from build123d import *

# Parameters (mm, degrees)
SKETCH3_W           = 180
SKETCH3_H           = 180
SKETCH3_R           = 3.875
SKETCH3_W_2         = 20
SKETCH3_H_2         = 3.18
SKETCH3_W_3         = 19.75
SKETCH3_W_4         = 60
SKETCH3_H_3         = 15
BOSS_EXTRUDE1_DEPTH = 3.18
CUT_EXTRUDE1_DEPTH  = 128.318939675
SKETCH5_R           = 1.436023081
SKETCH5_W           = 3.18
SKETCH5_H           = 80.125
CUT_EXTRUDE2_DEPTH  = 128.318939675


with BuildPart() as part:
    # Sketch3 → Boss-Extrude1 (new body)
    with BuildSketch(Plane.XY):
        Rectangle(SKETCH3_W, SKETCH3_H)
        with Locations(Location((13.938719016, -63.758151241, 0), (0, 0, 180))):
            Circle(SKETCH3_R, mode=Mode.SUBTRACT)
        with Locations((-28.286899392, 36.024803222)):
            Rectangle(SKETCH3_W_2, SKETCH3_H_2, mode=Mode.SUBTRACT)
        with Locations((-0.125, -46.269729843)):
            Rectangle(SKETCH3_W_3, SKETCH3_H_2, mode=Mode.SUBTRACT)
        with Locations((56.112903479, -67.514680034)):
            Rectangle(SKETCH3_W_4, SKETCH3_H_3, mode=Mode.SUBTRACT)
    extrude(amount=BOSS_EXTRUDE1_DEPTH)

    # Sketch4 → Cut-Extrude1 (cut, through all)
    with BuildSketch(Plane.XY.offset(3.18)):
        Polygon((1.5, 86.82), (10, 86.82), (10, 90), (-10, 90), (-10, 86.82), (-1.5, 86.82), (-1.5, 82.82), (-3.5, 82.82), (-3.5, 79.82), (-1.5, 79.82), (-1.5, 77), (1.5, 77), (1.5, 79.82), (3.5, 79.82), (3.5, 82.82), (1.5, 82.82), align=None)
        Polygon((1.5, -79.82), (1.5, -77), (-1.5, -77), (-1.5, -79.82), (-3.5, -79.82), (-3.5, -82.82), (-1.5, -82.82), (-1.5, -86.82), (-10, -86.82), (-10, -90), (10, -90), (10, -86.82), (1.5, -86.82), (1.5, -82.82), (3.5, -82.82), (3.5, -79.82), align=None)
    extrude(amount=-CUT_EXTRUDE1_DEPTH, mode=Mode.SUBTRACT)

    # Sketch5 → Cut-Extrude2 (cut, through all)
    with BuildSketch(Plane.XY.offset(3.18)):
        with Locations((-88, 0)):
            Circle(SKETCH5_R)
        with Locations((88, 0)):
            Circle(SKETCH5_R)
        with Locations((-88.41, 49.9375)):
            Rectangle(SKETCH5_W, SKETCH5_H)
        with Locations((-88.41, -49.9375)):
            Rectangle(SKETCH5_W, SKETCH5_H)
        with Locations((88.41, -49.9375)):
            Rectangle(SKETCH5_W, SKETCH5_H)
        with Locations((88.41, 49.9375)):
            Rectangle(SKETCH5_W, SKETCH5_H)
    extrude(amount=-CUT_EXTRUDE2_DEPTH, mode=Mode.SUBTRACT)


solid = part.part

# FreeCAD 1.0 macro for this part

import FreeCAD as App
import Part
import Sketcher


def add_polygon(sketch, points):
    """Adds a closed chain of lines whose ends are joined by coincident constraints."""
    first, n = sketch.GeometryCount, len(points)
    for a, b in zip(points, points[1:] + points[:1]):
        sketch.addGeometry(Part.LineSegment(App.Vector(*a, 0), App.Vector(*b, 0)), False)
    for i in range(n):
        sketch.addConstraint(Sketcher.Constraint("Coincident", first + i, 2, first + (i + 1) % n, 1))

doc = App.newDocument("Part")
body = doc.addObject("PartDesign::Body", "Body")

# Sketch on XY plane
sketch1 = doc.addObject("Sketcher::SketchObject", "Sketch")
body.addObject(sketch1)
sketch1.AttachmentSupport = (doc.XY_Plane, [""])
sketch1.MapMode = "FlatFace"
add_polygon(sketch1, [(-90, 90), (-90, -90), (90, -90), (90, 90)])  # lines 0-3
sketch1.addGeometry(Part.Circle(App.Vector(13.9, -63.8, 0), App.Vector(0, 0, 1), 3.9), False)  # 4
add_polygon(sketch1, [(9.8, -47.9), (-10, -47.9), (-10, -44.7), (9.8, -44.7)])  # lines 5-8
add_polygon(sketch1, [(86.1, -75), (26.1, -75), (26.1, -60), (86.1, -60)])  # lines 9-12
add_polygon(sketch1, [(-18.3, 34.4), (-38.3, 34.4), (-38.3, 37.6), (-18.3, 37.6)])  # lines 13-16
sketch1.addConstraint(Sketcher.Constraint("Vertical", 0))
sketch1.addConstraint(Sketcher.Constraint("Horizontal", 1))
sketch1.addConstraint(Sketcher.Constraint("Vertical", 2))
sketch1.addConstraint(Sketcher.Constraint("Horizontal", 3))
sketch1.addConstraint(Sketcher.Constraint("Horizontal", 5))
sketch1.addConstraint(Sketcher.Constraint("Vertical", 6))
sketch1.addConstraint(Sketcher.Constraint("Horizontal", 7))
sketch1.addConstraint(Sketcher.Constraint("Vertical", 8))
sketch1.addConstraint(Sketcher.Constraint("Horizontal", 9))
sketch1.addConstraint(Sketcher.Constraint("Vertical", 10))
sketch1.addConstraint(Sketcher.Constraint("Horizontal", 11))
sketch1.addConstraint(Sketcher.Constraint("Vertical", 12))
sketch1.addConstraint(Sketcher.Constraint("Horizontal", 13))
sketch1.addConstraint(Sketcher.Constraint("Vertical", 14))
sketch1.addConstraint(Sketcher.Constraint("Horizontal", 15))
sketch1.addConstraint(Sketcher.Constraint("Vertical", 16))
sketch1.addConstraint(Sketcher.Constraint("Symmetric", 0, 2, 2, 2, -1, 1))
sketch1.addConstraint(Sketcher.Constraint("Equal", 3, 0))
sketch1.addConstraint(Sketcher.Constraint("Equal", 8, 14))
sketch1.addConstraint(Sketcher.Constraint("Diameter", 4, 7.75))
sketch1.addConstraint(Sketcher.Constraint("DistanceX", 1, 1, 1, 2, 180.0))
sketch1.addConstraint(Sketcher.Constraint("DistanceX", 9, 2, 9, 1, 60.0))
sketch1.addConstraint(Sketcher.Constraint("DistanceX", 13, 2, 13, 1, 20.0))
sketch1.addConstraint(Sketcher.Constraint("DistanceY", 10, 1, 10, 2, 15.0))
sketch1.addConstraint(Sketcher.Constraint("DistanceX", 5, 2, -1, 1, 10.0))
sketch1.addConstraint(Sketcher.Constraint("DistanceX", 5, 2, 5, 1, 19.75))
sketch1.addConstraint(Sketcher.Constraint("DistanceY", 6, 1, 6, 2, 3.18))
sketch1.addConstraint(Sketcher.Constraint("DistanceX", 13, 2, -1, 1, 38.286899))
sketch1.addConstraint(Sketcher.Constraint("DistanceX", -1, 1, 4, 3, 13.938719))
sketch1.addConstraint(Sketcher.Constraint("DistanceY", 4, 3, -1, 1, 63.758151))
sketch1.addConstraint(Sketcher.Constraint("DistanceY", 5, 2, -1, 1, 47.85973))
sketch1.addConstraint(Sketcher.Constraint("DistanceY", 9, 2, -1, 1, 75.01468))
sketch1.addConstraint(Sketcher.Constraint("DistanceX", -1, 1, 9, 2, 26.112903))
sketch1.addConstraint(Sketcher.Constraint("DistanceY", -1, 1, 13, 2, 34.434803))
pad1 = doc.addObject("PartDesign::Pad", "Pad")
body.addObject(pad1)
pad1.Profile = sketch1
pad1.Length = 3.18

# Sketch on XY plane
sketch2 = doc.addObject("Sketcher::SketchObject", "Sketch001")
body.addObject(sketch2)
sketch2.AttachmentSupport = (doc.XY_Plane, [""])
sketch2.MapMode = "FlatFace"
sketch2.AttachmentOffset = App.Placement(App.Vector(0, 0, 3.18), App.Rotation())
add_polygon(sketch2, [(1.5, 86.8), (10, 86.8), (10, 90), (-10, 90), (-10, 86.8), (-1.5, 86.8), (-1.5, 82.8), (-3.5, 82.8), (-3.5, 79.8), (-1.5, 79.8), (-1.5, 77), (1.5, 77), (1.5, 79.8), (3.5, 79.8), (3.5, 82.8), (1.5, 82.8)])  # lines 0-15
add_polygon(sketch2, [(1.5, -79.8), (1.5, -77), (-1.5, -77), (-1.5, -79.8), (-3.5, -79.8), (-3.5, -82.8), (-1.5, -82.8), (-1.5, -86.8), (-10, -86.8), (-10, -90), (10, -90), (10, -86.8), (1.5, -86.8), (1.5, -82.8), (3.5, -82.8), (3.5, -79.8)])  # lines 16-31
sketch2.addConstraint(Sketcher.Constraint("Horizontal", 0))
sketch2.addConstraint(Sketcher.Constraint("Vertical", 1))
sketch2.addConstraint(Sketcher.Constraint("Horizontal", 2))
sketch2.addConstraint(Sketcher.Constraint("Vertical", 3))
sketch2.addConstraint(Sketcher.Constraint("Horizontal", 4))
sketch2.addConstraint(Sketcher.Constraint("Vertical", 5))
sketch2.addConstraint(Sketcher.Constraint("Horizontal", 6))
sketch2.addConstraint(Sketcher.Constraint("Vertical", 7))
sketch2.addConstraint(Sketcher.Constraint("Horizontal", 8))
sketch2.addConstraint(Sketcher.Constraint("Vertical", 9))
sketch2.addConstraint(Sketcher.Constraint("Horizontal", 10))
sketch2.addConstraint(Sketcher.Constraint("Vertical", 11))
sketch2.addConstraint(Sketcher.Constraint("Horizontal", 12))
sketch2.addConstraint(Sketcher.Constraint("Vertical", 13))
sketch2.addConstraint(Sketcher.Constraint("Horizontal", 14))
sketch2.addConstraint(Sketcher.Constraint("Vertical", 15))
sketch2.addConstraint(Sketcher.Constraint("Vertical", 16))
sketch2.addConstraint(Sketcher.Constraint("Horizontal", 17))
sketch2.addConstraint(Sketcher.Constraint("Vertical", 18))
sketch2.addConstraint(Sketcher.Constraint("Horizontal", 19))
sketch2.addConstraint(Sketcher.Constraint("Vertical", 20))
sketch2.addConstraint(Sketcher.Constraint("Horizontal", 21))
sketch2.addConstraint(Sketcher.Constraint("Vertical", 22))
sketch2.addConstraint(Sketcher.Constraint("Horizontal", 23))
sketch2.addConstraint(Sketcher.Constraint("Vertical", 24))
sketch2.addConstraint(Sketcher.Constraint("Horizontal", 25))
sketch2.addConstraint(Sketcher.Constraint("Vertical", 26))
sketch2.addConstraint(Sketcher.Constraint("Horizontal", 27))
sketch2.addConstraint(Sketcher.Constraint("Vertical", 28))
sketch2.addConstraint(Sketcher.Constraint("Horizontal", 29))
sketch2.addConstraint(Sketcher.Constraint("Vertical", 30))
sketch2.addConstraint(Sketcher.Constraint("Horizontal", 31))
sketch2.addConstraint(Sketcher.Constraint("Symmetric", 9, 2, 16, 2, -1, 1))
sketch2.addConstraint(Sketcher.Constraint("Symmetric", 11, 2, 18, 2, -1, 1))
sketch2.addConstraint(Sketcher.Constraint("Symmetric", 13, 2, 20, 2, -1, 1))
sketch2.addConstraint(Sketcher.Constraint("Symmetric", 15, 2, 22, 2, -1, 1))
sketch2.addConstraint(Sketcher.Constraint("Symmetric", 1, 2, 24, 2, -1, 1))
sketch2.addConstraint(Sketcher.Constraint("Symmetric", 3, 2, 26, 2, -1, 1))
sketch2.addConstraint(Sketcher.Constraint("Symmetric", 5, 2, 28, 2, -1, 1))
sketch2.addConstraint(Sketcher.Constraint("Symmetric", 7, 2, 30, 2, -1, 1))
sketch2.addConstraint(Sketcher.Constraint("Symmetric", 0, 2, 3, 2, -2))
sketch2.addConstraint(Sketcher.Constraint("Symmetric", 8, 2, 11, 2, -2))
sketch2.addConstraint(Sketcher.Constraint("Symmetric", 6, 2, 13, 2, -2))
sketch2.addConstraint(Sketcher.Constraint("Vertical", 5, 2, 8, 2))
sketch2.addConstraint(Sketcher.Constraint("Vertical", 11, 2, 14, 2))
sketch2.addConstraint(Sketcher.Constraint("Equal", 17, 7))
sketch2.addConstraint(Sketcher.Constraint("DistanceX", 2, 2, 2, 1, 20.0))
sketch2.addConstraint(Sketcher.Constraint("DistanceX", 6, 2, 6, 1, 2.0))
sketch2.addConstraint(Sketcher.Constraint("DistanceX", 10, 1, 10, 2, 3.0))
sketch2.addConstraint(Sketcher.Constraint("DistanceY", 5, 2, 5, 1, 4.0))
sketch2.addConstraint(Sketcher.Constraint("DistanceY", -1, 1, 1, 2, 90.0))
sketch2.addConstraint(Sketcher.Constraint("DistanceY", -1, 1, 9, 2, 77.0))
sketch2.addConstraint(Sketcher.Constraint("DistanceY", 1, 1, 1, 2, 3.18))
pocket1 = doc.addObject("PartDesign::Pocket", "Pocket")
body.addObject(pocket1)
pocket1.Profile = sketch2
pocket1.Type = "ThroughAll"

# Sketch on XY plane
sketch3 = doc.addObject("Sketcher::SketchObject", "Sketch002")
body.addObject(sketch3)
sketch3.AttachmentSupport = (doc.XY_Plane, [""])
sketch3.MapMode = "FlatFace"
sketch3.AttachmentOffset = App.Placement(App.Vector(0, 0, 3.18), App.Rotation())
sketch3.addGeometry(Part.Circle(App.Vector(-88, 0, 0), App.Vector(0, 0, 1), 1.4), False)  # 0
sketch3.addGeometry(Part.Circle(App.Vector(88, 0, 0), App.Vector(0, 0, 1), 1.4), False)  # 1
add_polygon(sketch3, [(-90, 90), (-90, 9.9), (-86.8, 9.9), (-86.8, 90)])  # lines 2-5
add_polygon(sketch3, [(-90, -9.9), (-90, -90), (-86.8, -90), (-86.8, -9.9)])  # lines 6-9
add_polygon(sketch3, [(86.8, -9.9), (86.8, -90), (90, -90), (90, -9.9)])  # lines 10-13
add_polygon(sketch3, [(86.8, 90), (86.8, 9.9), (90, 9.9), (90, 90)])  # lines 14-17
sketch3.addConstraint(Sketcher.Constraint("Vertical", 2))
sketch3.addConstraint(Sketcher.Constraint("Horizontal", 3))
sketch3.addConstraint(Sketcher.Constraint("Vertical", 4))
sketch3.addConstraint(Sketcher.Constraint("Horizontal", 5))
sketch3.addConstraint(Sketcher.Constraint("Vertical", 6))
sketch3.addConstraint(Sketcher.Constraint("Horizontal", 7))
sketch3.addConstraint(Sketcher.Constraint("Vertical", 8))
sketch3.addConstraint(Sketcher.Constraint("Horizontal", 9))
sketch3.addConstraint(Sketcher.Constraint("Vertical", 10))
sketch3.addConstraint(Sketcher.Constraint("Horizontal", 11))
sketch3.addConstraint(Sketcher.Constraint("Vertical", 12))
sketch3.addConstraint(Sketcher.Constraint("Horizontal", 13))
sketch3.addConstraint(Sketcher.Constraint("Vertical", 14))
sketch3.addConstraint(Sketcher.Constraint("Horizontal", 15))
sketch3.addConstraint(Sketcher.Constraint("Vertical", 16))
sketch3.addConstraint(Sketcher.Constraint("Horizontal", 17))
sketch3.addConstraint(Sketcher.Constraint("Equal", 0, 1))
sketch3.addConstraint(Sketcher.Constraint("Symmetric", 0, 3, 1, 3, -1, 1))
sketch3.addConstraint(Sketcher.Constraint("Symmetric", 4, 2, 10, 2, -1, 1))
sketch3.addConstraint(Sketcher.Constraint("Symmetric", 2, 2, 12, 2, -1, 1))
sketch3.addConstraint(Sketcher.Constraint("Symmetric", 8, 2, 14, 2, -1, 1))
sketch3.addConstraint(Sketcher.Constraint("Symmetric", 6, 2, 16, 2, -1, 1))
sketch3.addConstraint(Sketcher.Constraint("Symmetric", 7, 2, 10, 2, -2))
sketch3.addConstraint(Sketcher.Constraint("Symmetric", 9, 2, 12, 2, -2))
sketch3.addConstraint(Sketcher.Constraint("PointOnObject", 0, 3, -1))
sketch3.addConstraint(Sketcher.Constraint("DistanceX", 0, 3, -1, 1, 88.0))
sketch3.addConstraint(Sketcher.Constraint("DistanceX", 2, 2, -1, 1, 90.0))
sketch3.addConstraint(Sketcher.Constraint("DistanceY", -1, 1, 4, 2, 90.0))
sketch3.addConstraint(Sketcher.Constraint("DistanceX", 3, 1, 3, 2, 3.18))
sketch3.addConstraint(Sketcher.Constraint("DistanceY", 2, 2, 2, 1, 80.125))
sketch3.addConstraint(Sketcher.Constraint("Diameter", 0, 2.872046))
pocket2 = doc.addObject("PartDesign::Pocket", "Pocket001")
body.addObject(pocket2)
pocket2.Profile = sketch3
pocket2.Type = "ThroughAll"

doc.recompute()
